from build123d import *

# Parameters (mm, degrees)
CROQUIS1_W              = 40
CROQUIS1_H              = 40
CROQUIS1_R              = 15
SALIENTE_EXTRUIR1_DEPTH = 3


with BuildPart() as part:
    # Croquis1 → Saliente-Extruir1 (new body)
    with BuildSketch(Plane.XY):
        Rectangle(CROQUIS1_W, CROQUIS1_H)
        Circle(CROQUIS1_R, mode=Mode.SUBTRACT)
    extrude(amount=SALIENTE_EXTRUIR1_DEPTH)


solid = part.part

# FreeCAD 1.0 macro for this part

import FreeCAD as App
import Part
import Sketcher

V = App.Vector
Q = App.Units.Quantity

doc = App.newDocument("Part")
body = doc.addObject("PartDesign::Body", "Body")

# Sketch on XY plane
sketch1 = body.newObject("Sketcher::SketchObject", "Sketch")
sketch1.AttachmentSupport = (doc.getObject("XY_Plane"), [""])
sketch1.MapMode = "FlatFace"
sketch1.addGeometry(Part.LineSegment(V(-20, 20, 0), V(-20, -20, 0)), False)
sketch1.addGeometry(Part.LineSegment(V(-20, -20, 0), V(20, -20, 0)), False)
sketch1.addGeometry(Part.LineSegment(V(20, -20, 0), V(20, 20, 0)), False)
sketch1.addGeometry(Part.LineSegment(V(20, 20, 0), V(-20, 20, 0)), False)
sketch1.addGeometry(Part.Circle(V(0, 0, 0), V(0, 0, 1), 15), False)
sketch1.addConstraint(Sketcher.Constraint("Coincident", 0, 2, 1, 1))
sketch1.addConstraint(Sketcher.Constraint("Coincident", 1, 2, 2, 1))
sketch1.addConstraint(Sketcher.Constraint("Coincident", 2, 2, 3, 1))
sketch1.addConstraint(Sketcher.Constraint("Coincident", 3, 2, 0, 1))
sketch1.addConstraint(Sketcher.Constraint("Vertical", 0))
sketch1.addConstraint(Sketcher.Constraint("Horizontal", 1))
sketch1.addConstraint(Sketcher.Constraint("Vertical", 2))
sketch1.addConstraint(Sketcher.Constraint("Horizontal", 3))
sketch1.addConstraint(Sketcher.Constraint("Coincident", 4, 3, -1, 1))
sketch1.addConstraint(Sketcher.Constraint("Symmetric", 0, 2, 2, 2, -1, 1))
sketch1.addConstraint(Sketcher.Constraint("Equal", 3, 0))
sketch1.addConstraint(Sketcher.Constraint("Diameter", 4, Q("30 mm")))
sketch1.addConstraint(Sketcher.Constraint("DistanceX", 1, 1, 1, 2, Q("40 mm")))
pad1 = body.newObject("PartDesign::Pad", "Pad")
pad1.Profile = sketch1
pad1.Length = 3

doc.recompute()
